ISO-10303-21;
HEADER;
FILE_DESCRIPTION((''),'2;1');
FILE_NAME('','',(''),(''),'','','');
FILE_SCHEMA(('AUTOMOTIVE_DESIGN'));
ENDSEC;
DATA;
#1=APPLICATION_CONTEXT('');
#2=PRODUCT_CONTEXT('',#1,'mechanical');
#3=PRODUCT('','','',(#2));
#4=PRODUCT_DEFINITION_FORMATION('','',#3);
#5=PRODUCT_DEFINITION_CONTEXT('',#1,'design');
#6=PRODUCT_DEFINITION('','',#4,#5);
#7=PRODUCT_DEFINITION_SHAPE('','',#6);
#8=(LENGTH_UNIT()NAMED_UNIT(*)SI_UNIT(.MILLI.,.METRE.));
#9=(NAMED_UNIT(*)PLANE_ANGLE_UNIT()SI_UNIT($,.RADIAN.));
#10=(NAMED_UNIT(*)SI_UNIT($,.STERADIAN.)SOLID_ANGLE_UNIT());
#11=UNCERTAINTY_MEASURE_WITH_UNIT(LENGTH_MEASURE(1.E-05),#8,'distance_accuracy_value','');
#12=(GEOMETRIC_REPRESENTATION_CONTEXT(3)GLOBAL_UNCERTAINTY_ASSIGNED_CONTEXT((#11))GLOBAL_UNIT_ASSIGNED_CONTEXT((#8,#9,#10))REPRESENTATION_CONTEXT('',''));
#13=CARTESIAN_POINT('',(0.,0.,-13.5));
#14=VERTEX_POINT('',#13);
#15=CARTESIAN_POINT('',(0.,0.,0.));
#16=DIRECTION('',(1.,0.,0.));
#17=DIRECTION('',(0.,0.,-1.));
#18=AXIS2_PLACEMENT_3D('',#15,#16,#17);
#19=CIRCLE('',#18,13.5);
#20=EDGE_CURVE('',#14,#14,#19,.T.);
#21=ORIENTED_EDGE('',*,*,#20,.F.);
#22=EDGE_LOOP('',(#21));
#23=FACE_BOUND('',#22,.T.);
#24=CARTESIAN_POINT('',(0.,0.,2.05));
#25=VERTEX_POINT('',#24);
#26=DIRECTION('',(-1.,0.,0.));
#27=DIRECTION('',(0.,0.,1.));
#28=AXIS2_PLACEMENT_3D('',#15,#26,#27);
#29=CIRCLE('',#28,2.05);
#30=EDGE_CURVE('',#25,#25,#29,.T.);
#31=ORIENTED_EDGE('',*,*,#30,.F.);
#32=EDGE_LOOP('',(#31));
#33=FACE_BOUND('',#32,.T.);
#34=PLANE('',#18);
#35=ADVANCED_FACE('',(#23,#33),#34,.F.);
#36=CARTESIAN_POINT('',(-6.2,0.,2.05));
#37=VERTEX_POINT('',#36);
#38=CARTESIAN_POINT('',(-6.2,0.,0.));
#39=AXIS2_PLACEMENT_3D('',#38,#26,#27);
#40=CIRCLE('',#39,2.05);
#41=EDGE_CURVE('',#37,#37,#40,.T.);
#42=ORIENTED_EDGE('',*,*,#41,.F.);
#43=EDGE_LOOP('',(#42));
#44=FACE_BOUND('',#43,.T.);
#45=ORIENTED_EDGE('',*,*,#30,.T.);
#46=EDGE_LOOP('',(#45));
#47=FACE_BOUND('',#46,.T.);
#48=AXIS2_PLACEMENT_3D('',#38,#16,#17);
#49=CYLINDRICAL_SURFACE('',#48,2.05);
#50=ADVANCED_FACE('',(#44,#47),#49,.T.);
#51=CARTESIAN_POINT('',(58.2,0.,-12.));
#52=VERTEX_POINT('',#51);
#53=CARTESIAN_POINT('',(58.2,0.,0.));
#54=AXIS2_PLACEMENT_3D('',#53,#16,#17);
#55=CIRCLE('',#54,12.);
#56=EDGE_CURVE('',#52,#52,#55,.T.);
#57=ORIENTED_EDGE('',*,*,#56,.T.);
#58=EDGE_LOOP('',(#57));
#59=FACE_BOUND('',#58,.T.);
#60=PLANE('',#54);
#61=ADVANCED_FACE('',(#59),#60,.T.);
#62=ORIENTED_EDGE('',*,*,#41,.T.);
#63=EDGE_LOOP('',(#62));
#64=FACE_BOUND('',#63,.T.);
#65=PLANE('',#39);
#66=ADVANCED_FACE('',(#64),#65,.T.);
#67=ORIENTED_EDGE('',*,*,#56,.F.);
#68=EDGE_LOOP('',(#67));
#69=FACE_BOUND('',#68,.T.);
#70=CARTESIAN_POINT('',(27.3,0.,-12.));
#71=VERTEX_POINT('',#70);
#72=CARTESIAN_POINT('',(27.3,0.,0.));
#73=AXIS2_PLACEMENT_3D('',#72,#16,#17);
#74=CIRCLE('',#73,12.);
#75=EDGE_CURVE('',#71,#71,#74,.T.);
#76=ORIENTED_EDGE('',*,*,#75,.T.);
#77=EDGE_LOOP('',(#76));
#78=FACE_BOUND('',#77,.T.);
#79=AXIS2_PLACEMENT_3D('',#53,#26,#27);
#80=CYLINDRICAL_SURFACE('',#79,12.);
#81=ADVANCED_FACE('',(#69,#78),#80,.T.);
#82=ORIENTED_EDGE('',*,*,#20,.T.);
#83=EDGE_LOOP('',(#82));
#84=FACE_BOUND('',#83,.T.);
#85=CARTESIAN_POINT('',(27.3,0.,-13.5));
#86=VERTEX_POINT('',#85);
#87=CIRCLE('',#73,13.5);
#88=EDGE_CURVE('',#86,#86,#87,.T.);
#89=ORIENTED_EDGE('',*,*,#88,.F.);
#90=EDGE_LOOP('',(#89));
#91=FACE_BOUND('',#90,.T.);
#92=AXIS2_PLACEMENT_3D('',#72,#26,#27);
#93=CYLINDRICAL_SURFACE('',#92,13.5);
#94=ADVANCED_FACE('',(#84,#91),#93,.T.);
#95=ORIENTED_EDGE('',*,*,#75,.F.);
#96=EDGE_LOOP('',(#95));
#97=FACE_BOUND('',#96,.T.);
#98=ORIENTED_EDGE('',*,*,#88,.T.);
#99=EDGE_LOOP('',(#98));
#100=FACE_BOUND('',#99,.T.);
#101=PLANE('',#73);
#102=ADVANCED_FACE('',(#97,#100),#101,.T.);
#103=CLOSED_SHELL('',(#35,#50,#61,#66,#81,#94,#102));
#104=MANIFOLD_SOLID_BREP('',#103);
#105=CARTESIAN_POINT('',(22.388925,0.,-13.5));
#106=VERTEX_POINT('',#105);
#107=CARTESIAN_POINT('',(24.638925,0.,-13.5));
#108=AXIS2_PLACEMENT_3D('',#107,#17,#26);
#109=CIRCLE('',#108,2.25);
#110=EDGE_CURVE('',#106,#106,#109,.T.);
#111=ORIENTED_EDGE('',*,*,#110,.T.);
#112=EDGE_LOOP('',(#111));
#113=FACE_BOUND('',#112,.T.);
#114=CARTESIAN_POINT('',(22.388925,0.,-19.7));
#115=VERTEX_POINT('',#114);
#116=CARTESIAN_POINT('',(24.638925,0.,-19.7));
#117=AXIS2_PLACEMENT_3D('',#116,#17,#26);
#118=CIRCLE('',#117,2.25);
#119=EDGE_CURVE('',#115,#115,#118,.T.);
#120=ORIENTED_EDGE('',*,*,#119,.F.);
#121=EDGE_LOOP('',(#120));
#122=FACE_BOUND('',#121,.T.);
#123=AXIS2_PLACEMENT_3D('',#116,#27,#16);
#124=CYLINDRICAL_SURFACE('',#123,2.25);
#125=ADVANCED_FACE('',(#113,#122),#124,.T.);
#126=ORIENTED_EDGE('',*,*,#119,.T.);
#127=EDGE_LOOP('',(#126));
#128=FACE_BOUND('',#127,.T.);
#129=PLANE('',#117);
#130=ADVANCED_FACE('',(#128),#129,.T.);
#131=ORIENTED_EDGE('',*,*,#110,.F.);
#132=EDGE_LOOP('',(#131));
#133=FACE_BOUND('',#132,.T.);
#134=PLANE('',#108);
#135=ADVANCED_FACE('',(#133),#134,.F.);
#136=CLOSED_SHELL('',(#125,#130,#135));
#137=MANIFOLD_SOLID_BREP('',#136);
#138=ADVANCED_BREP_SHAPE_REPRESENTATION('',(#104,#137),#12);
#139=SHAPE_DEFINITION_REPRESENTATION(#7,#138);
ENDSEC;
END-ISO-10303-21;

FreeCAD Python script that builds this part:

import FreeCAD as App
import Part
import Sketcher
Q = App.Units.Quantity

doc = App.newDocument("Part")
body = doc.addObject("PartDesign::Body", "Body")

# Sketch on YZ plane
sketch1 = doc.addObject("Sketcher::SketchObject", "Sketch")
body.addObject(sketch1)
sketch1.AttachmentSupport = (doc.YZ_Plane, [""])
sketch1.MapMode = "FlatFace"
sketch1.addGeometry(Part.Circle(App.Vector(0, 0, 0), App.Vector(0, 0, 1), 14), False)
sketch1.addConstraint([
    Sketcher.Constraint("Coincident", 0, 3, -1, 1),
    Sketcher.Constraint("Diameter", 0, Q("27 mm")),
])
pad1 = doc.addObject("PartDesign::Pad", "Pad")
body.addObject(pad1)
pad1.Profile = sketch1
pad1.Length = 27.3

# Sketch on YZ plane
sketch2 = doc.addObject("Sketcher::SketchObject", "Sketch001")
body.addObject(sketch2)
sketch2.AttachmentSupport = (doc.YZ_Plane, [""])
sketch2.MapMode = "FlatFace"
sketch2.AttachmentOffset = App.Placement(App.Vector(0, 0, 27.3), App.Rotation())
sketch2.addGeometry(Part.Circle(App.Vector(0, 0, 0), App.Vector(0, 0, 1), 12), False)
sketch2.addConstraint([
    Sketcher.Constraint("Coincident", 0, 3, -1, 1),
    Sketcher.Constraint("Diameter", 0, Q("24 mm")),
])
pad2 = doc.addObject("PartDesign::Pad", "Pad001")
body.addObject(pad2)
pad2.Profile = sketch2
pad2.Length = 30.9

# Sketch on YZ plane
sketch3 = doc.addObject("Sketcher::SketchObject", "Sketch002")
body.addObject(sketch3)
sketch3.AttachmentSupport = (doc.YZ_Plane, [""])
sketch3.MapMode = "FlatFace"
sketch3.addGeometry(Part.Circle(App.Vector(0, 0, 0), App.Vector(0, 0, 1), 2), False)
sketch3.addConstraint([
    Sketcher.Constraint("Coincident", 0, 3, -1, 1),
    Sketcher.Constraint("Diameter", 0, Q("4.1 mm")),
])
pad3 = doc.addObject("PartDesign::Pad", "Pad002")
body.addObject(pad3)
pad3.Profile = sketch3
pad3.Length = 6.2
pad3.Reversed = True
body2 = doc.addObject("PartDesign::Body", "Body001")

# Sketch on XY plane
sketch4 = doc.addObject("Sketcher::SketchObject", "Sketch003")
body2.addObject(sketch4)
sketch4.AttachmentSupport = (doc.getObject("XY_Plane001"), [""])
sketch4.MapMode = "FlatFace"
sketch4.AttachmentOffset = App.Placement(App.Vector(0, 0, -13.5), App.Rotation())
sketch4.addGeometry(Part.Circle(App.Vector(24.6, 0, 0), App.Vector(0, 0, 1), 2.2), False)
sketch4.addConstraint([
    Sketcher.Constraint("PointOnObject", 0, 3, -1),
    Sketcher.Constraint("Diameter", 0, Q("4.5 mm")),
    Sketcher.Constraint("DistanceX", -1, 1, 0, 3, Q("24.638925 mm")),
])
pad4 = doc.addObject("PartDesign::Pad", "Pad003")
body2.addObject(pad4)
pad4.Profile = sketch4
pad4.Length = 6.2
pad4.Reversed = True

doc.recompute()
